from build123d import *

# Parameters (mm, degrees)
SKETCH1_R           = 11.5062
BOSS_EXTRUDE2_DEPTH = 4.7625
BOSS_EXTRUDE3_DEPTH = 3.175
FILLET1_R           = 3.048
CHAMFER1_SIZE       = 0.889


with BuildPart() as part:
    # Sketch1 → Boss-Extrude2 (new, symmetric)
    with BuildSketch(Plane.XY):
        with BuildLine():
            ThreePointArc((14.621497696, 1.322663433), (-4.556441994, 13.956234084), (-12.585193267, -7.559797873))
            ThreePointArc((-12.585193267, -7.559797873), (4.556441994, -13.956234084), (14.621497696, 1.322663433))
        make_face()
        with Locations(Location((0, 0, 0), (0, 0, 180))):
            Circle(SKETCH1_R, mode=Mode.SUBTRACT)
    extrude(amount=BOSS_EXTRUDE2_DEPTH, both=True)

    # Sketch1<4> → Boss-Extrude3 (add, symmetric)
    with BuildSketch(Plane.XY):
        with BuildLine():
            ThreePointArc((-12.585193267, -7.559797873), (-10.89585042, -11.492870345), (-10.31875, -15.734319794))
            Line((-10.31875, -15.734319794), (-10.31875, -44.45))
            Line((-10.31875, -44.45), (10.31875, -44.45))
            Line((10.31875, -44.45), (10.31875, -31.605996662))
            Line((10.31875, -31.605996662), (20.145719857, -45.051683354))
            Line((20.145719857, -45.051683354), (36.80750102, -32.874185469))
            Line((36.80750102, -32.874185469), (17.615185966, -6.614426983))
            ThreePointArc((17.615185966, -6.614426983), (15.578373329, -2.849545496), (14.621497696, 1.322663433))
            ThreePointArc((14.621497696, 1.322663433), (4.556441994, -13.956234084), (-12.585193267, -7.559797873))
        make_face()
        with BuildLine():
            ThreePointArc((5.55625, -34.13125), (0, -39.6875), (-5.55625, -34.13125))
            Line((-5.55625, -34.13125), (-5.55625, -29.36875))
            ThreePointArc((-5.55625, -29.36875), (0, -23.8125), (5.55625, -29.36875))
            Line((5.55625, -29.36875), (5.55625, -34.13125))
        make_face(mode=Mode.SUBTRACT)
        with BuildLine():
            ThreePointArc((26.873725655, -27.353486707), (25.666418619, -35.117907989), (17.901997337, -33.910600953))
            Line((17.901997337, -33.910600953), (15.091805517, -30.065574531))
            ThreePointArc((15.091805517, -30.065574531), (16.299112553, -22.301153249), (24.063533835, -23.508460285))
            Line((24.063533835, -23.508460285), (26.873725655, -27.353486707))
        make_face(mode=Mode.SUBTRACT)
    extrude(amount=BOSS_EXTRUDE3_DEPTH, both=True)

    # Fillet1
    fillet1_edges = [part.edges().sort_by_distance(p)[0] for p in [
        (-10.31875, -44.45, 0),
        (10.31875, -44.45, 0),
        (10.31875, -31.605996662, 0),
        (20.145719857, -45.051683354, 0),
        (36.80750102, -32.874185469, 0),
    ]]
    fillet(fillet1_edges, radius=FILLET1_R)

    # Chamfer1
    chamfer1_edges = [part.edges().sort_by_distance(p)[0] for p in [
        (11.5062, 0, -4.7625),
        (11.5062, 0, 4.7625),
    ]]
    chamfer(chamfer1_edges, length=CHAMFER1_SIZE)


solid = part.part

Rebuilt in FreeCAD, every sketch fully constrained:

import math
import FreeCAD as App
import Part
import Sketcher
Q = App.Units.Quantity


def edges_at(feature, points):
    """Names of the edges that pass closest to the given points."""
    edges = feature.Shape.Edges
    near = lambda p: min(range(len(edges)), key=lambda i: edges[i].distToShape(Part.Vertex(*p))[0])
    return sorted({f"Edge{near(p) + 1}" for p in points})

doc = App.newDocument("Part")
body = doc.addObject("PartDesign::Body", "Body")

# Sketch on XY plane
sketch1 = body.newObject("Sketcher::SketchObject", "Sketch")
sketch1.AttachmentSupport = (doc.getObject("XY_Plane"), [""])
sketch1.MapMode = "FlatFace"
sketch1.addGeometry(Part.ArcOfCircle(Part.Circle(App.Vector(0, 0, 0), App.Vector(0, 0, 1), 15), math.radians(5), math.radians(211)), False)
sketch1.addGeometry(Part.ArcOfCircle(Part.Circle(App.Vector(0, 0, 0), App.Vector(0, 0, 1), 15), math.radians(-149), math.radians(5)), False)
sketch1.addGeometry(Part.Circle(App.Vector(0, 0, 0), App.Vector(0, 0, 1), 12), False)
sketch1.addConstraint(Sketcher.Constraint("Tangent", 0, 1, 1, 2))
sketch1.addConstraint(Sketcher.Constraint("Coincident", 1, 1, 0, 2))
sketch1.addConstraint(Sketcher.Constraint("Coincident", 0, 3, -1, 1))
sketch1.addConstraint(Sketcher.Constraint("Coincident", 2, 3, -1, 1))
sketch1.addConstraint(Sketcher.Constraint("Diameter", 2, Q("0.906 in")))
sketch1.addConstraint(Sketcher.Constraint("Radius", 0, Q("0.578 in")))
sketch1.addConstraint(Sketcher.Constraint("DistanceX", 1, 1, 0, 1, Q("27.206691 mm")))
sketch1.addConstraint(Sketcher.Constraint("DistanceY", 1, 1, 0, 1, Q("8.882461 mm")))
pad1 = body.newObject("PartDesign::Pad", "Pad")
pad1.Profile = sketch1
pad1.Length = Q("0.375 in")
pad1.Midplane = True

# Sketch on XY plane
sketch2 = body.newObject("Sketcher::SketchObject", "Sketch001")
sketch2.AttachmentSupport = (doc.getObject("XY_Plane"), [""])
sketch2.MapMode = "FlatFace"
sketch2.addGeometry(Part.ArcOfCircle(Part.Circle(App.Vector(-26.2, -15.7, 0), App.Vector(0, 0, 1), 15.9), math.radians(0), math.radians(31)), False)
sketch2.addGeometry(Part.LineSegment(App.Vector(-10.3, -15.7, 0), App.Vector(-10.3, -44.5, 0)), False)
sketch2.addGeometry(Part.LineSegment(App.Vector(-10.3, -44.5, 0), App.Vector(10.3, -44.5, 0)), False)
sketch2.addGeometry(Part.LineSegment(App.Vector(10.3, -44.5, 0), App.Vector(10.3, -31.6, 0)), False)
sketch2.addGeometry(Part.LineSegment(App.Vector(10.3, -31.6, 0), App.Vector(20.1, -45.1, 0)), False)
sketch2.addGeometry(Part.LineSegment(App.Vector(20.1, -45.1, 0), App.Vector(36.8, -32.9, 0)), False)
sketch2.addGeometry(Part.LineSegment(App.Vector(36.8, -32.9, 0), App.Vector(17.6, -6.6, 0)), False)
sketch2.addGeometry(Part.ArcOfCircle(Part.Circle(App.Vector(30.4, 2.8, 0), App.Vector(0, 0, 1), 15.9), math.radians(-175), math.radians(-144)), False)
sketch2.addGeometry(Part.ArcOfCircle(Part.Circle(App.Vector(0, 0, 0), App.Vector(0, 0, 1), 14.7), math.radians(-149), math.radians(5)), False)
sketch2.addGeometry(Part.LineSegment(App.Vector(5.6, -29.4, 0), App.Vector(5.6, -34.1, 0)), False)
sketch2.addGeometry(Part.ArcOfCircle(Part.Circle(App.Vector(0, -34.1, 0), App.Vector(0, 0, 1), 5.6), math.radians(180), math.radians(360)), False)
sketch2.addGeometry(Part.LineSegment(App.Vector(-5.6, -34.1, 0), App.Vector(-5.6, -29.4, 0)), False)
sketch2.addGeometry(Part.ArcOfCircle(Part.Circle(App.Vector(0, -29.4, 0), App.Vector(0, 0, 1), 5.6), math.radians(0), math.radians(180)), False)
sketch2.addGeometry(Part.LineSegment(App.Vector(24.1, -23.5, 0), App.Vector(26.9, -27.4, 0)), False)
sketch2.addGeometry(Part.ArcOfCircle(Part.Circle(App.Vector(22.4, -30.6, 0), App.Vector(0, 0, 1), 5.6), math.radians(-144), math.radians(36)), False)
sketch2.addGeometry(Part.LineSegment(App.Vector(17.9, -33.9, 0), App.Vector(15.1, -30.1, 0)), False)
sketch2.addGeometry(Part.ArcOfCircle(Part.Circle(App.Vector(19.6, -26.8, 0), App.Vector(0, 0, 1), 5.6), math.radians(36), math.radians(216)), False)
sketch2.addConstraint(Sketcher.Constraint("Tangent", 0, 1, 1, 1))
sketch2.addConstraint(Sketcher.Constraint("Coincident", 1, 2, 2, 1))
sketch2.addConstraint(Sketcher.Constraint("Coincident", 2, 2, 3, 1))
sketch2.addConstraint(Sketcher.Constraint("Coincident", 3, 2, 4, 1))
sketch2.addConstraint(Sketcher.Constraint("Coincident", 4, 2, 5, 1))
sketch2.addConstraint(Sketcher.Constraint("Coincident", 5, 2, 6, 1))
sketch2.addConstraint(Sketcher.Constraint("Tangent", 6, 2, 7, 2))
sketch2.addConstraint(Sketcher.Constraint("Tangent", 7, 1, 8, 2))
sketch2.addConstraint(Sketcher.Constraint("Tangent", 8, 1, 0, 2))
sketch2.addConstraint(Sketcher.Constraint("Tangent", 9, 2, 10, 2))
sketch2.addConstraint(Sketcher.Constraint("Tangent", 10, 1, 11, 1))
sketch2.addConstraint(Sketcher.Constraint("Tangent", 11, 2, 12, 2))
sketch2.addConstraint(Sketcher.Constraint("Tangent", 12, 1, 9, 1))
sketch2.addConstraint(Sketcher.Constraint("Tangent", 13, 2, 14, 2))
sketch2.addConstraint(Sketcher.Constraint("Tangent", 14, 1, 15, 1))
sketch2.addConstraint(Sketcher.Constraint("Tangent", 15, 2, 16, 2))
sketch2.addConstraint(Sketcher.Constraint("Tangent", 16, 1, 13, 1))
sketch2.addConstraint(Sketcher.Constraint("Vertical", 1))
sketch2.addConstraint(Sketcher.Constraint("Horizontal", 2))
sketch2.addConstraint(Sketcher.Constraint("Vertical", 3))
sketch2.addConstraint(Sketcher.Constraint("Vertical", 9))
sketch2.addConstraint(Sketcher.Constraint("Vertical", 11))
sketch2.addConstraint(Sketcher.Constraint("Coincident", 8, 3, -1, 1))
sketch2.addConstraint(Sketcher.Constraint("Equal", 0, 7))
sketch2.addConstraint(Sketcher.Constraint("Equal", 12, 14))
sketch2.addConstraint(Sketcher.Constraint("Equal", 14, 16))
sketch2.addConstraint(Sketcher.Constraint("PointOnObject", 10, 3, -2))
sketch2.addConstraint(Sketcher.Constraint("Perpendicular", 4, 5))
sketch2.addConstraint(Sketcher.Constraint("Perpendicular", 5, 6))
sketch2.addConstraint(Sketcher.Constraint("Parallel", 6, 13))
sketch2.addConstraint(Sketcher.Constraint("Radius", 0, Q("0.625 in")))
sketch2.addConstraint(Sketcher.Constraint("Radius", 8, Q("0.578 in")))
sketch2.addConstraint(Sketcher.Constraint("Radius", 10, Q("0.21875 in")))
sketch2.addConstraint(Sketcher.Constraint("DistanceX", 2, 1, 2, 2, Q("0.8125 in")))
sketch2.addConstraint(Sketcher.Constraint("DistanceY", 9, 2, 9, 1, Q("0.1875 in")))
sketch2.addConstraint(Sketcher.Constraint("DistanceY", 1, 2, -1, 1, Q("1.75 in")))
sketch2.addConstraint(Sketcher.Constraint("Distance", 5, Q("0.8125 in")))
sketch2.addConstraint(Sketcher.Constraint("Distance", 13, Q("0.1875 in")))
sketch2.addConstraint(Sketcher.Constraint("DistanceX", 0, 3, -1, 1, Q("1.03125 in")))
sketch2.addConstraint(Sketcher.Constraint("DistanceY", 10, 3, -1, 1, Q("1.34375 in")))
sketch2.addConstraint(Sketcher.Constraint("DistanceX", -1, 1, 5, 2, Q("36.807501 mm")))
sketch2.addConstraint(Sketcher.Constraint("DistanceY", 14, 1, -1, 1, Q("33.910601 mm")))
sketch2.addConstraint(Sketcher.Constraint("DistanceY", 0, 3, 7, 3, Q("18.487199 mm")))
sketch2.addConstraint(Sketcher.Constraint("DistanceY", 5, 2, 13, 2, Q("5.520699 mm")))
sketch2.addConstraint(Sketcher.Constraint("DistanceX", -1, 1, 14, 3, Q("22.387861 mm")))
pad2 = body.newObject("PartDesign::Pad", "Pad001")
pad2.Profile = sketch2
pad2.Length = Q("0.25 in")
pad2.Midplane = True
doc.recompute()

fillet = body.newObject("PartDesign::Fillet", "Fillet")
fillet.Base = (pad2, edges_at(pad2, [
    (-10.319, -44.45, 0),
    (10.319, -44.45, 0),
    (10.319, -31.606, 0),
    (20.146, -45.052, 0),
    (36.808, -32.874, 0),
]))
fillet.Radius = Q("0.12 in")
doc.recompute()

chamfer = body.newObject("PartDesign::Chamfer", "Chamfer")
chamfer.Base = (fillet, edges_at(fillet, [(11.506, 0, -4.763), (11.506, 0, 4.763)]))
chamfer.Size = Q("0.035 in")

doc.recompute()
